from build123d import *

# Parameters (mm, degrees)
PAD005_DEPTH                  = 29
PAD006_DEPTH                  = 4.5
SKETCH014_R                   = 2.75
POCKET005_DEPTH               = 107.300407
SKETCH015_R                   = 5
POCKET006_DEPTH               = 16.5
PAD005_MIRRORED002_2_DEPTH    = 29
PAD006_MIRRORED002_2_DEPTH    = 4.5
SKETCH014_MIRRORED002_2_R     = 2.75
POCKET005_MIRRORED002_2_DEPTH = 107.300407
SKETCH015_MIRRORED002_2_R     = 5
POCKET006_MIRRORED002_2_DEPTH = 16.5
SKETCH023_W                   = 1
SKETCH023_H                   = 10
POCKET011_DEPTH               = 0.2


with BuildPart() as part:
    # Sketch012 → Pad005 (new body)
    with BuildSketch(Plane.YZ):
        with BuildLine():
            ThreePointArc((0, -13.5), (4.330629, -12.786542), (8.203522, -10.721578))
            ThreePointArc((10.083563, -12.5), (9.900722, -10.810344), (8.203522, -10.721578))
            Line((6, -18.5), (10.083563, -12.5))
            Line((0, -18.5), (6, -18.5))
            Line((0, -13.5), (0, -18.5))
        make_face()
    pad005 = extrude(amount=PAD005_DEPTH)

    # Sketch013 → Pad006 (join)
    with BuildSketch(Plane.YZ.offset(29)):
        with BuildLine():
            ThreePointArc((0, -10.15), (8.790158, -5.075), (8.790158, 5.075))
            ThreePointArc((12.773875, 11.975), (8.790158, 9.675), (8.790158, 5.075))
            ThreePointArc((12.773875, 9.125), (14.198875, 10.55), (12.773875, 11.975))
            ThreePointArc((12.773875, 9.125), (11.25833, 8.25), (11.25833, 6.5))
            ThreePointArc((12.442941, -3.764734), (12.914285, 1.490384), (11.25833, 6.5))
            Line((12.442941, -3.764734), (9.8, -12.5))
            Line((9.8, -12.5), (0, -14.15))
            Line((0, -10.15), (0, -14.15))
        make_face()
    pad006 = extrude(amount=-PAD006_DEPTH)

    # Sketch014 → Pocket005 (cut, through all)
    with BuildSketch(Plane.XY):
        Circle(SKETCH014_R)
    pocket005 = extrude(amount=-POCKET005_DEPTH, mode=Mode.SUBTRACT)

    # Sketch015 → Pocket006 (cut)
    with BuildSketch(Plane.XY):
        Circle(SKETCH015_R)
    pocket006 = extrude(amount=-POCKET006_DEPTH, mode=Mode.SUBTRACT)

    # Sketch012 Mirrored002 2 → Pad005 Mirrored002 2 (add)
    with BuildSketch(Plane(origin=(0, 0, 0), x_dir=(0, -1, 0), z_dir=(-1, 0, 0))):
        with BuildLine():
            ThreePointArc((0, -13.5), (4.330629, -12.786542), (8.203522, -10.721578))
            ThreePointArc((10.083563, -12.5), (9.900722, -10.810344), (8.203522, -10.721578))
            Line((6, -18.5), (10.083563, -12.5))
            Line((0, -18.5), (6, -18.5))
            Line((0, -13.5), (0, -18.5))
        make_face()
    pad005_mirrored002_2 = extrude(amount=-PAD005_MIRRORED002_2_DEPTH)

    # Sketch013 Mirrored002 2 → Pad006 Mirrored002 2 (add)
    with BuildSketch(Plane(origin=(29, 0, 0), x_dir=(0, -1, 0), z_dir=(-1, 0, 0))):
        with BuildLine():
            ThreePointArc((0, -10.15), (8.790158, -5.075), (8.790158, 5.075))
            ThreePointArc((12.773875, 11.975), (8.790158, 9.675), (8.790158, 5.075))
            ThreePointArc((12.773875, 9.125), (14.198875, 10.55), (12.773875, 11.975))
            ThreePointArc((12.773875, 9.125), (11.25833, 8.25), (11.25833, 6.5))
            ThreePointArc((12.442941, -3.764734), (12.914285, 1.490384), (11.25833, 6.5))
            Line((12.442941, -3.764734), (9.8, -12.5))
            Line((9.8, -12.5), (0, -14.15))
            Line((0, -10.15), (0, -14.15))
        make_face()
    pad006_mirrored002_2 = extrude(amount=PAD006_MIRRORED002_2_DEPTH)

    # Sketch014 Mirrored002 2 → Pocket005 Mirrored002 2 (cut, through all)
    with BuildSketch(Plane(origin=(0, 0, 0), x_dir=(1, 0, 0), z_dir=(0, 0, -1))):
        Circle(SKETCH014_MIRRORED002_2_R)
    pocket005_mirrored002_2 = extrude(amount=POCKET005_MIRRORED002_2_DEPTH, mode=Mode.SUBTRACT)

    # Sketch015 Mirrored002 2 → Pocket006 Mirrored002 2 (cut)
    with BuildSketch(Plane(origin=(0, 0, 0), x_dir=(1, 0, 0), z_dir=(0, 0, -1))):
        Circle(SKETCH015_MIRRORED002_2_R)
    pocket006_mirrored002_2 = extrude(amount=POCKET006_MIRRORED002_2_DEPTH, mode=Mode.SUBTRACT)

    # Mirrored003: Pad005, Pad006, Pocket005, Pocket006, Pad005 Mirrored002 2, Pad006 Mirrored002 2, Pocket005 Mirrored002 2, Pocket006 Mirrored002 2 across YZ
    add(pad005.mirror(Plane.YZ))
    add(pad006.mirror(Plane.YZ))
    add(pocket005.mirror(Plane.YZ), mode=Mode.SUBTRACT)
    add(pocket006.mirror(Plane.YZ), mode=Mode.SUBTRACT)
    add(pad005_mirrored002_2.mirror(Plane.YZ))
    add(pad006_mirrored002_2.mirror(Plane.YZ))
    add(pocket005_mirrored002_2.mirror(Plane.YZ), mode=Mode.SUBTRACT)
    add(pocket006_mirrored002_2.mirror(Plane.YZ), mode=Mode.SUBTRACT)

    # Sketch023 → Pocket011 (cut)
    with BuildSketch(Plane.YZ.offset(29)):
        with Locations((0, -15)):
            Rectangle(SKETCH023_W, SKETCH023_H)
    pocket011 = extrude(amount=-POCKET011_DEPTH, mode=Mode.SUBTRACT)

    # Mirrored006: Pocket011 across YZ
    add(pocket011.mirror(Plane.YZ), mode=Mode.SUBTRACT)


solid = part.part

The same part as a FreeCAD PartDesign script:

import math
import FreeCAD as App
import Part
import Sketcher
from FreeCAD import Vector
Q = App.Units.Quantity


def add_polygon(sketch, points):
    """Adds a closed chain of lines whose ends are joined by coincident constraints."""
    first, n = sketch.GeometryCount, len(points)
    for a, b in zip(points, points[1:] + points[:1]):
        sketch.addGeometry(Part.LineSegment(App.Vector(*a, 0), App.Vector(*b, 0)), False)
    for i in range(n):
        sketch.addConstraint(Sketcher.Constraint("Coincident", first + i, 2, first + (i + 1) % n, 1))

doc = App.newDocument("Part")
body = doc.addObject("PartDesign::Body", "Body")

# Sketch on YZ plane
sketch1 = body.newObject("Sketcher::SketchObject", "Sketch")
sketch1.AttachmentSupport = (doc.getObject("YZ_Plane"), [""])
sketch1.MapMode = "FlatFace"
sketch1.addGeometry([
    Part.ArcOfCircle(Part.Circle(Vector(0, 0, 0), Vector(0, 0, 1), 13.5), math.radians(-90), math.radians(-53)),  # 0
    Part.LineSegment(Vector(0, -13.5, 0), Vector(0, -18.5, 0)),  # 1
    Part.LineSegment(Vector(0, -18.5, 0), Vector(6, -18.5, 0)),  # 2
    Part.LineSegment(Vector(6, -18.5, 0), Vector(10.1, -12.5, 0)),  # 3
    Part.ArcOfCircle(Part.Circle(Vector(9, -11.8, 0), Vector(0, 0, 1), 1.3), math.radians(-34), math.radians(127)),  # 4
], False)
sketch1.addConstraint([
    Sketcher.Constraint("Coincident", 0, 1, 1, 1),
    Sketcher.Constraint("Coincident", 1, 2, 2, 1),
    Sketcher.Constraint("Coincident", 2, 2, 3, 1),
    Sketcher.Constraint("Tangent", 3, 2, 4, 1),
    Sketcher.Constraint("Tangent", 4, 2, 0, 2),
    Sketcher.Constraint("Vertical", 1),
    Sketcher.Constraint("Horizontal", 2),
    Sketcher.Constraint("Coincident", 0, 3, -1, 1),
    Sketcher.Constraint("PointOnObject", 0, 1, -2),
    Sketcher.Constraint("Radius", 0, Q("13.5 mm")),
    Sketcher.Constraint("DistanceX", 2, 1, 2, 2, Q("6 mm")),
    Sketcher.Constraint("DistanceY", 1, 2, 1, 1, Q("5 mm")),
    Sketcher.Constraint("DistanceX", -1, 1, 4, 3, Q("9 mm")),
    Sketcher.Constraint("DistanceY", 2, 2, 3, 2, Q("6 mm")),
])
pad1 = body.newObject("PartDesign::Pad", "Pad")
pad1.Profile = sketch1
pad1.Length = 29

# Sketch on YZ plane
sketch2 = body.newObject("Sketcher::SketchObject", "Sketch001")
sketch2.AttachmentSupport = (doc.getObject("YZ_Plane"), [""])
sketch2.MapMode = "FlatFace"
sketch2.AttachmentOffset = App.Placement(Vector(0, 0, 29), App.Rotation())
sketch2.addGeometry([
    Part.ArcOfCircle(Part.Circle(Vector(0, 0, 0), Vector(0, 0, 1), 10.2), math.radians(-90), math.radians(30)),  # 0
    Part.LineSegment(Vector(0, -10.2, 0), Vector(0, -14.2, 0)),  # 1
    Part.LineSegment(Vector(0, -14.2, 0), Vector(9.8, -12.5, 0)),  # 2
    Part.LineSegment(Vector(9.8, -12.5, 0), Vector(12.4, -3.8, 0)),  # 3
    Part.ArcOfCircle(Part.Circle(Vector(0, 0, 0), Vector(0, 0, 1), 13), math.radians(-17), math.radians(30)),  # 4
    Part.ArcOfCircle(Part.Circle(Vector(12.8, 7.4, 0), Vector(0, 0, 1), 1.8), math.radians(90), math.radians(210)),  # 5
    Part.ArcOfCircle(Part.Circle(Vector(12.8, 10.6, 0), Vector(0, 0, 1), 1.4), math.radians(-90), math.radians(90)),  # 6
    Part.ArcOfCircle(Part.Circle(Vector(12.8, 7.4, 0), Vector(0, 0, 1), 4.6), math.radians(90), math.radians(210)),  # 7
], False)
sketch2.addConstraint([
    Sketcher.Constraint("Coincident", 0, 1, 1, 1),
    Sketcher.Constraint("Coincident", 1, 2, 2, 1),
    Sketcher.Constraint("Coincident", 2, 2, 3, 1),
    Sketcher.Constraint("Tangent", 3, 2, 4, 1),
    Sketcher.Constraint("Tangent", 4, 2, 5, 2),
    Sketcher.Constraint("Tangent", 5, 1, 6, 1),
    Sketcher.Constraint("Tangent", 6, 2, 7, 1),
    Sketcher.Constraint("Tangent", 7, 2, 0, 2),
    Sketcher.Constraint("Vertical", 1),
    Sketcher.Constraint("Coincident", 0, 3, -1, 1),
    Sketcher.Constraint("Coincident", 4, 3, -1, 1),
    Sketcher.Constraint("Coincident", 7, 3, 5, 3),
    Sketcher.Constraint("PointOnObject", 0, 1, -2),
    Sketcher.Constraint("Vertical", 5, 3, 6, 3),
    Sketcher.Constraint("Radius", 4, Q("12.999999 mm")),
    Sketcher.Constraint("Radius", 7, Q("4.6 mm")),
    Sketcher.Constraint("DistanceY", 1, 2, 1, 1, Q("4 mm")),
    Sketcher.Constraint("Radius", 0, Q("10.15 mm")),
    Sketcher.Constraint("DistanceX", -1, 1, 2, 2, Q("9.8 mm")),
    Sketcher.Constraint("DistanceY", 2, 2, -1, 1, Q("12.5 mm")),
    Sketcher.Constraint("DistanceY", -1, 1, 4, 2, Q("6.5 mm")),
])
pad2 = body.newObject("PartDesign::Pad", "Pad001")
pad2.Profile = sketch2
pad2.Length = 4.5
pad2.Reversed = True

# Sketch on XY plane
sketch3 = body.newObject("Sketcher::SketchObject", "Sketch002")
sketch3.AttachmentSupport = (doc.getObject("XY_Plane"), [""])
sketch3.MapMode = "FlatFace"
sketch3.addGeometry(Part.Circle(Vector(0, 0, 0), Vector(0, 0, 1), 2.8), False)
sketch3.addConstraint([
    Sketcher.Constraint("Coincident", 0, 3, -1, 1),
    Sketcher.Constraint("Diameter", 0, Q("5.5 mm")),
])
pocket1 = body.newObject("PartDesign::Pocket", "Pocket")
pocket1.Profile = sketch3
pocket1.Type = "ThroughAll"

# Sketch on XY plane
sketch4 = body.newObject("Sketcher::SketchObject", "Sketch003")
sketch4.AttachmentSupport = (doc.getObject("XY_Plane"), [""])
sketch4.MapMode = "FlatFace"
sketch4.addGeometry(Part.Circle(Vector(0, 0, 0), Vector(0, 0, 1), 5), False)
sketch4.addConstraint([
    Sketcher.Constraint("Coincident", 0, 3, -1, 1),
    Sketcher.Constraint("Diameter", 0, Q("10 mm")),
])
pocket2 = body.newObject("PartDesign::Pocket", "Pocket001")
pocket2.Profile = sketch4
pocket2.Length = 16.5

# Sketch on YZ plane
sketch5 = body.newObject("Sketcher::SketchObject", "Sketch004")
sketch5.AttachmentSupport = (doc.getObject("YZ_Plane"), [""])
sketch5.MapMode = "FlatFace"
sketch5.addGeometry([
    Part.ArcOfCircle(Part.Circle(Vector(0, 0, 0), Vector(0, 0, 1), 13.5), math.radians(-127), math.radians(-90)),  # 0
    Part.LineSegment(Vector(0, -13.5, 0), Vector(0, -18.5, 0)),  # 1
    Part.LineSegment(Vector(0, -18.5, 0), Vector(-6, -18.5, 0)),  # 2
    Part.LineSegment(Vector(-6, -18.5, 0), Vector(-10.1, -12.5, 0)),  # 3
    Part.ArcOfCircle(Part.Circle(Vector(-9, -11.8, 0), Vector(0, 0, 1), 1.3), math.radians(53), math.radians(214)),  # 4
], False)
sketch5.addConstraint([
    Sketcher.Constraint("Coincident", 0, 2, 1, 1),
    Sketcher.Constraint("Coincident", 1, 2, 2, 1),
    Sketcher.Constraint("Coincident", 2, 2, 3, 1),
    Sketcher.Constraint("Tangent", 3, 2, 4, 2),
    Sketcher.Constraint("Tangent", 4, 1, 0, 1),
    Sketcher.Constraint("Vertical", 1),
    Sketcher.Constraint("Horizontal", 2),
    Sketcher.Constraint("Coincident", 0, 3, -1, 1),
    Sketcher.Constraint("PointOnObject", 0, 2, -2),
    Sketcher.Constraint("Radius", 0, Q("13.5 mm")),
    Sketcher.Constraint("DistanceX", 2, 2, 2, 1, Q("6 mm")),
    Sketcher.Constraint("DistanceY", 1, 2, 1, 1, Q("5 mm")),
    Sketcher.Constraint("DistanceX", 4, 3, -1, 1, Q("9 mm")),
    Sketcher.Constraint("DistanceY", 2, 2, 3, 2, Q("6 mm")),
])
pad3 = body.newObject("PartDesign::Pad", "Pad002")
pad3.Profile = sketch5
pad3.Length = 29

# Sketch on YZ plane
sketch6 = body.newObject("Sketcher::SketchObject", "Sketch005")
sketch6.AttachmentSupport = (doc.getObject("YZ_Plane"), [""])
sketch6.MapMode = "FlatFace"
sketch6.AttachmentOffset = App.Placement(Vector(0, 0, 29), App.Rotation())
sketch6.addGeometry([
    Part.ArcOfCircle(Part.Circle(Vector(0, 0, 0), Vector(0, 0, 1), 10.2), math.radians(150), math.radians(270)),  # 0
    Part.LineSegment(Vector(0, -10.2, 0), Vector(0, -14.2, 0)),  # 1
    Part.LineSegment(Vector(0, -14.2, 0), Vector(-9.8, -12.5, 0)),  # 2
    Part.LineSegment(Vector(-9.8, -12.5, 0), Vector(-12.4, -3.8, 0)),  # 3
    Part.ArcOfCircle(Part.Circle(Vector(0, 0, 0), Vector(0, 0, 1), 13), math.radians(150), math.radians(197)),  # 4
    Part.ArcOfCircle(Part.Circle(Vector(-12.8, 7.4, 0), Vector(0, 0, 1), 1.8), math.radians(-30), math.radians(90)),  # 5
    Part.ArcOfCircle(Part.Circle(Vector(-12.8, 10.6, 0), Vector(0, 0, 1), 1.4), math.radians(90), math.radians(270)),  # 6
    Part.ArcOfCircle(Part.Circle(Vector(-12.8, 7.4, 0), Vector(0, 0, 1), 4.6), math.radians(-30), math.radians(90)),  # 7
], False)
sketch6.addConstraint([
    Sketcher.Constraint("Coincident", 0, 2, 1, 1),
    Sketcher.Constraint("Coincident", 1, 2, 2, 1),
    Sketcher.Constraint("Coincident", 2, 2, 3, 1),
    Sketcher.Constraint("Tangent", 3, 2, 4, 2),
    Sketcher.Constraint("Tangent", 4, 1, 5, 1),
    Sketcher.Constraint("Tangent", 5, 2, 6, 2),
    Sketcher.Constraint("Tangent", 6, 1, 7, 2),
    Sketcher.Constraint("Tangent", 7, 1, 0, 1),
    Sketcher.Constraint("Vertical", 1),
    Sketcher.Constraint("Coincident", 0, 3, -1, 1),
    Sketcher.Constraint("Coincident", 4, 3, -1, 1),
    Sketcher.Constraint("Coincident", 7, 3, 5, 3),
    Sketcher.Constraint("PointOnObject", 0, 2, -2),
    Sketcher.Constraint("Vertical", 5, 3, 6, 3),
    Sketcher.Constraint("Radius", 4, Q("12.999999 mm")),
    Sketcher.Constraint("Radius", 7, Q("4.6 mm")),
    Sketcher.Constraint("DistanceY", 1, 2, 1, 1, Q("4 mm")),
    Sketcher.Constraint("Radius", 0, Q("10.15 mm")),
    Sketcher.Constraint("DistanceX", 2, 2, -1, 1, Q("9.8 mm")),
    Sketcher.Constraint("DistanceY", 2, 2, -1, 1, Q("12.5 mm")),
    Sketcher.Constraint("DistanceY", -1, 1, 4, 1, Q("6.5 mm")),
])
pad4 = body.newObject("PartDesign::Pad", "Pad003")
pad4.Profile = sketch6
pad4.Length = 4.5
pad4.Reversed = True

# Sketch on XY plane
sketch7 = body.newObject("Sketcher::SketchObject", "Sketch006")
sketch7.AttachmentSupport = (doc.getObject("XY_Plane"), [""])
sketch7.MapMode = "FlatFace"
sketch7.addGeometry(Part.Circle(Vector(0, 0, 0), Vector(0, 0, 1), 2.8), False)
sketch7.addConstraint([
    Sketcher.Constraint("Coincident", 0, 3, -1, 1),
    Sketcher.Constraint("Diameter", 0, Q("5.5 mm")),
])
pocket3 = body.newObject("PartDesign::Pocket", "Pocket002")
pocket3.Profile = sketch7
pocket3.Type = "ThroughAll"

# Sketch on XY plane
sketch8 = body.newObject("Sketcher::SketchObject", "Sketch007")
sketch8.AttachmentSupport = (doc.getObject("XY_Plane"), [""])
sketch8.MapMode = "FlatFace"
sketch8.addGeometry(Part.Circle(Vector(0, 0, 0), Vector(0, 0, 1), 5), False)
sketch8.addConstraint([
    Sketcher.Constraint("Coincident", 0, 3, -1, 1),
    Sketcher.Constraint("Diameter", 0, Q("10 mm")),
])
pocket4 = body.newObject("PartDesign::Pocket", "Pocket003")
pocket4.Profile = sketch8
pocket4.Length = 16.5
doc.recompute()

mirrored = body.newObject("PartDesign::Mirrored", "Mirrored")
mirrored.Originals = [pad1, pad2, pocket1, pocket2, pad3, pad4, pocket3, pocket4]
mirrored.MirrorPlane = (doc.getObject("YZ_Plane"), [""])
body.Tip = mirrored

# Sketch on YZ plane
sketch9 = body.newObject("Sketcher::SketchObject", "Sketch008")
sketch9.AttachmentSupport = (doc.getObject("YZ_Plane"), [""])
sketch9.MapMode = "FlatFace"
sketch9.AttachmentOffset = App.Placement(Vector(0, 0, 29), App.Rotation())
add_polygon(sketch9, [(-0.5, -10), (-0.5, -20), (0.5, -20), (0.5, -10)])  # lines 0-3
sketch9.addConstraint([
    Sketcher.Constraint("Vertical", 0),
    Sketcher.Constraint("Horizontal", 1),
    Sketcher.Constraint("Vertical", 2),
    Sketcher.Constraint("Horizontal", 3),
    Sketcher.Constraint("DistanceX", 1, 1, 1, 2, Q("1 mm")),
    Sketcher.Constraint("DistanceY", 0, 2, 0, 1, Q("10 mm")),
    Sketcher.Constraint("DistanceY", 0, 2, -1, 1, Q("20 mm")),
    Sketcher.Constraint("DistanceX", 0, 2, -1, 1, Q("0.5 mm")),
])
pocket5 = body.newObject("PartDesign::Pocket", "Pocket004")
pocket5.Profile = sketch9
pocket5.Length = 0.2
doc.recompute()

mirrored2 = body.newObject("PartDesign::Mirrored", "Mirrored001")
mirrored2.Originals = [pocket5]
mirrored2.MirrorPlane = (doc.getObject("YZ_Plane"), [""])
body.Tip = mirrored2

doc.recompute()
